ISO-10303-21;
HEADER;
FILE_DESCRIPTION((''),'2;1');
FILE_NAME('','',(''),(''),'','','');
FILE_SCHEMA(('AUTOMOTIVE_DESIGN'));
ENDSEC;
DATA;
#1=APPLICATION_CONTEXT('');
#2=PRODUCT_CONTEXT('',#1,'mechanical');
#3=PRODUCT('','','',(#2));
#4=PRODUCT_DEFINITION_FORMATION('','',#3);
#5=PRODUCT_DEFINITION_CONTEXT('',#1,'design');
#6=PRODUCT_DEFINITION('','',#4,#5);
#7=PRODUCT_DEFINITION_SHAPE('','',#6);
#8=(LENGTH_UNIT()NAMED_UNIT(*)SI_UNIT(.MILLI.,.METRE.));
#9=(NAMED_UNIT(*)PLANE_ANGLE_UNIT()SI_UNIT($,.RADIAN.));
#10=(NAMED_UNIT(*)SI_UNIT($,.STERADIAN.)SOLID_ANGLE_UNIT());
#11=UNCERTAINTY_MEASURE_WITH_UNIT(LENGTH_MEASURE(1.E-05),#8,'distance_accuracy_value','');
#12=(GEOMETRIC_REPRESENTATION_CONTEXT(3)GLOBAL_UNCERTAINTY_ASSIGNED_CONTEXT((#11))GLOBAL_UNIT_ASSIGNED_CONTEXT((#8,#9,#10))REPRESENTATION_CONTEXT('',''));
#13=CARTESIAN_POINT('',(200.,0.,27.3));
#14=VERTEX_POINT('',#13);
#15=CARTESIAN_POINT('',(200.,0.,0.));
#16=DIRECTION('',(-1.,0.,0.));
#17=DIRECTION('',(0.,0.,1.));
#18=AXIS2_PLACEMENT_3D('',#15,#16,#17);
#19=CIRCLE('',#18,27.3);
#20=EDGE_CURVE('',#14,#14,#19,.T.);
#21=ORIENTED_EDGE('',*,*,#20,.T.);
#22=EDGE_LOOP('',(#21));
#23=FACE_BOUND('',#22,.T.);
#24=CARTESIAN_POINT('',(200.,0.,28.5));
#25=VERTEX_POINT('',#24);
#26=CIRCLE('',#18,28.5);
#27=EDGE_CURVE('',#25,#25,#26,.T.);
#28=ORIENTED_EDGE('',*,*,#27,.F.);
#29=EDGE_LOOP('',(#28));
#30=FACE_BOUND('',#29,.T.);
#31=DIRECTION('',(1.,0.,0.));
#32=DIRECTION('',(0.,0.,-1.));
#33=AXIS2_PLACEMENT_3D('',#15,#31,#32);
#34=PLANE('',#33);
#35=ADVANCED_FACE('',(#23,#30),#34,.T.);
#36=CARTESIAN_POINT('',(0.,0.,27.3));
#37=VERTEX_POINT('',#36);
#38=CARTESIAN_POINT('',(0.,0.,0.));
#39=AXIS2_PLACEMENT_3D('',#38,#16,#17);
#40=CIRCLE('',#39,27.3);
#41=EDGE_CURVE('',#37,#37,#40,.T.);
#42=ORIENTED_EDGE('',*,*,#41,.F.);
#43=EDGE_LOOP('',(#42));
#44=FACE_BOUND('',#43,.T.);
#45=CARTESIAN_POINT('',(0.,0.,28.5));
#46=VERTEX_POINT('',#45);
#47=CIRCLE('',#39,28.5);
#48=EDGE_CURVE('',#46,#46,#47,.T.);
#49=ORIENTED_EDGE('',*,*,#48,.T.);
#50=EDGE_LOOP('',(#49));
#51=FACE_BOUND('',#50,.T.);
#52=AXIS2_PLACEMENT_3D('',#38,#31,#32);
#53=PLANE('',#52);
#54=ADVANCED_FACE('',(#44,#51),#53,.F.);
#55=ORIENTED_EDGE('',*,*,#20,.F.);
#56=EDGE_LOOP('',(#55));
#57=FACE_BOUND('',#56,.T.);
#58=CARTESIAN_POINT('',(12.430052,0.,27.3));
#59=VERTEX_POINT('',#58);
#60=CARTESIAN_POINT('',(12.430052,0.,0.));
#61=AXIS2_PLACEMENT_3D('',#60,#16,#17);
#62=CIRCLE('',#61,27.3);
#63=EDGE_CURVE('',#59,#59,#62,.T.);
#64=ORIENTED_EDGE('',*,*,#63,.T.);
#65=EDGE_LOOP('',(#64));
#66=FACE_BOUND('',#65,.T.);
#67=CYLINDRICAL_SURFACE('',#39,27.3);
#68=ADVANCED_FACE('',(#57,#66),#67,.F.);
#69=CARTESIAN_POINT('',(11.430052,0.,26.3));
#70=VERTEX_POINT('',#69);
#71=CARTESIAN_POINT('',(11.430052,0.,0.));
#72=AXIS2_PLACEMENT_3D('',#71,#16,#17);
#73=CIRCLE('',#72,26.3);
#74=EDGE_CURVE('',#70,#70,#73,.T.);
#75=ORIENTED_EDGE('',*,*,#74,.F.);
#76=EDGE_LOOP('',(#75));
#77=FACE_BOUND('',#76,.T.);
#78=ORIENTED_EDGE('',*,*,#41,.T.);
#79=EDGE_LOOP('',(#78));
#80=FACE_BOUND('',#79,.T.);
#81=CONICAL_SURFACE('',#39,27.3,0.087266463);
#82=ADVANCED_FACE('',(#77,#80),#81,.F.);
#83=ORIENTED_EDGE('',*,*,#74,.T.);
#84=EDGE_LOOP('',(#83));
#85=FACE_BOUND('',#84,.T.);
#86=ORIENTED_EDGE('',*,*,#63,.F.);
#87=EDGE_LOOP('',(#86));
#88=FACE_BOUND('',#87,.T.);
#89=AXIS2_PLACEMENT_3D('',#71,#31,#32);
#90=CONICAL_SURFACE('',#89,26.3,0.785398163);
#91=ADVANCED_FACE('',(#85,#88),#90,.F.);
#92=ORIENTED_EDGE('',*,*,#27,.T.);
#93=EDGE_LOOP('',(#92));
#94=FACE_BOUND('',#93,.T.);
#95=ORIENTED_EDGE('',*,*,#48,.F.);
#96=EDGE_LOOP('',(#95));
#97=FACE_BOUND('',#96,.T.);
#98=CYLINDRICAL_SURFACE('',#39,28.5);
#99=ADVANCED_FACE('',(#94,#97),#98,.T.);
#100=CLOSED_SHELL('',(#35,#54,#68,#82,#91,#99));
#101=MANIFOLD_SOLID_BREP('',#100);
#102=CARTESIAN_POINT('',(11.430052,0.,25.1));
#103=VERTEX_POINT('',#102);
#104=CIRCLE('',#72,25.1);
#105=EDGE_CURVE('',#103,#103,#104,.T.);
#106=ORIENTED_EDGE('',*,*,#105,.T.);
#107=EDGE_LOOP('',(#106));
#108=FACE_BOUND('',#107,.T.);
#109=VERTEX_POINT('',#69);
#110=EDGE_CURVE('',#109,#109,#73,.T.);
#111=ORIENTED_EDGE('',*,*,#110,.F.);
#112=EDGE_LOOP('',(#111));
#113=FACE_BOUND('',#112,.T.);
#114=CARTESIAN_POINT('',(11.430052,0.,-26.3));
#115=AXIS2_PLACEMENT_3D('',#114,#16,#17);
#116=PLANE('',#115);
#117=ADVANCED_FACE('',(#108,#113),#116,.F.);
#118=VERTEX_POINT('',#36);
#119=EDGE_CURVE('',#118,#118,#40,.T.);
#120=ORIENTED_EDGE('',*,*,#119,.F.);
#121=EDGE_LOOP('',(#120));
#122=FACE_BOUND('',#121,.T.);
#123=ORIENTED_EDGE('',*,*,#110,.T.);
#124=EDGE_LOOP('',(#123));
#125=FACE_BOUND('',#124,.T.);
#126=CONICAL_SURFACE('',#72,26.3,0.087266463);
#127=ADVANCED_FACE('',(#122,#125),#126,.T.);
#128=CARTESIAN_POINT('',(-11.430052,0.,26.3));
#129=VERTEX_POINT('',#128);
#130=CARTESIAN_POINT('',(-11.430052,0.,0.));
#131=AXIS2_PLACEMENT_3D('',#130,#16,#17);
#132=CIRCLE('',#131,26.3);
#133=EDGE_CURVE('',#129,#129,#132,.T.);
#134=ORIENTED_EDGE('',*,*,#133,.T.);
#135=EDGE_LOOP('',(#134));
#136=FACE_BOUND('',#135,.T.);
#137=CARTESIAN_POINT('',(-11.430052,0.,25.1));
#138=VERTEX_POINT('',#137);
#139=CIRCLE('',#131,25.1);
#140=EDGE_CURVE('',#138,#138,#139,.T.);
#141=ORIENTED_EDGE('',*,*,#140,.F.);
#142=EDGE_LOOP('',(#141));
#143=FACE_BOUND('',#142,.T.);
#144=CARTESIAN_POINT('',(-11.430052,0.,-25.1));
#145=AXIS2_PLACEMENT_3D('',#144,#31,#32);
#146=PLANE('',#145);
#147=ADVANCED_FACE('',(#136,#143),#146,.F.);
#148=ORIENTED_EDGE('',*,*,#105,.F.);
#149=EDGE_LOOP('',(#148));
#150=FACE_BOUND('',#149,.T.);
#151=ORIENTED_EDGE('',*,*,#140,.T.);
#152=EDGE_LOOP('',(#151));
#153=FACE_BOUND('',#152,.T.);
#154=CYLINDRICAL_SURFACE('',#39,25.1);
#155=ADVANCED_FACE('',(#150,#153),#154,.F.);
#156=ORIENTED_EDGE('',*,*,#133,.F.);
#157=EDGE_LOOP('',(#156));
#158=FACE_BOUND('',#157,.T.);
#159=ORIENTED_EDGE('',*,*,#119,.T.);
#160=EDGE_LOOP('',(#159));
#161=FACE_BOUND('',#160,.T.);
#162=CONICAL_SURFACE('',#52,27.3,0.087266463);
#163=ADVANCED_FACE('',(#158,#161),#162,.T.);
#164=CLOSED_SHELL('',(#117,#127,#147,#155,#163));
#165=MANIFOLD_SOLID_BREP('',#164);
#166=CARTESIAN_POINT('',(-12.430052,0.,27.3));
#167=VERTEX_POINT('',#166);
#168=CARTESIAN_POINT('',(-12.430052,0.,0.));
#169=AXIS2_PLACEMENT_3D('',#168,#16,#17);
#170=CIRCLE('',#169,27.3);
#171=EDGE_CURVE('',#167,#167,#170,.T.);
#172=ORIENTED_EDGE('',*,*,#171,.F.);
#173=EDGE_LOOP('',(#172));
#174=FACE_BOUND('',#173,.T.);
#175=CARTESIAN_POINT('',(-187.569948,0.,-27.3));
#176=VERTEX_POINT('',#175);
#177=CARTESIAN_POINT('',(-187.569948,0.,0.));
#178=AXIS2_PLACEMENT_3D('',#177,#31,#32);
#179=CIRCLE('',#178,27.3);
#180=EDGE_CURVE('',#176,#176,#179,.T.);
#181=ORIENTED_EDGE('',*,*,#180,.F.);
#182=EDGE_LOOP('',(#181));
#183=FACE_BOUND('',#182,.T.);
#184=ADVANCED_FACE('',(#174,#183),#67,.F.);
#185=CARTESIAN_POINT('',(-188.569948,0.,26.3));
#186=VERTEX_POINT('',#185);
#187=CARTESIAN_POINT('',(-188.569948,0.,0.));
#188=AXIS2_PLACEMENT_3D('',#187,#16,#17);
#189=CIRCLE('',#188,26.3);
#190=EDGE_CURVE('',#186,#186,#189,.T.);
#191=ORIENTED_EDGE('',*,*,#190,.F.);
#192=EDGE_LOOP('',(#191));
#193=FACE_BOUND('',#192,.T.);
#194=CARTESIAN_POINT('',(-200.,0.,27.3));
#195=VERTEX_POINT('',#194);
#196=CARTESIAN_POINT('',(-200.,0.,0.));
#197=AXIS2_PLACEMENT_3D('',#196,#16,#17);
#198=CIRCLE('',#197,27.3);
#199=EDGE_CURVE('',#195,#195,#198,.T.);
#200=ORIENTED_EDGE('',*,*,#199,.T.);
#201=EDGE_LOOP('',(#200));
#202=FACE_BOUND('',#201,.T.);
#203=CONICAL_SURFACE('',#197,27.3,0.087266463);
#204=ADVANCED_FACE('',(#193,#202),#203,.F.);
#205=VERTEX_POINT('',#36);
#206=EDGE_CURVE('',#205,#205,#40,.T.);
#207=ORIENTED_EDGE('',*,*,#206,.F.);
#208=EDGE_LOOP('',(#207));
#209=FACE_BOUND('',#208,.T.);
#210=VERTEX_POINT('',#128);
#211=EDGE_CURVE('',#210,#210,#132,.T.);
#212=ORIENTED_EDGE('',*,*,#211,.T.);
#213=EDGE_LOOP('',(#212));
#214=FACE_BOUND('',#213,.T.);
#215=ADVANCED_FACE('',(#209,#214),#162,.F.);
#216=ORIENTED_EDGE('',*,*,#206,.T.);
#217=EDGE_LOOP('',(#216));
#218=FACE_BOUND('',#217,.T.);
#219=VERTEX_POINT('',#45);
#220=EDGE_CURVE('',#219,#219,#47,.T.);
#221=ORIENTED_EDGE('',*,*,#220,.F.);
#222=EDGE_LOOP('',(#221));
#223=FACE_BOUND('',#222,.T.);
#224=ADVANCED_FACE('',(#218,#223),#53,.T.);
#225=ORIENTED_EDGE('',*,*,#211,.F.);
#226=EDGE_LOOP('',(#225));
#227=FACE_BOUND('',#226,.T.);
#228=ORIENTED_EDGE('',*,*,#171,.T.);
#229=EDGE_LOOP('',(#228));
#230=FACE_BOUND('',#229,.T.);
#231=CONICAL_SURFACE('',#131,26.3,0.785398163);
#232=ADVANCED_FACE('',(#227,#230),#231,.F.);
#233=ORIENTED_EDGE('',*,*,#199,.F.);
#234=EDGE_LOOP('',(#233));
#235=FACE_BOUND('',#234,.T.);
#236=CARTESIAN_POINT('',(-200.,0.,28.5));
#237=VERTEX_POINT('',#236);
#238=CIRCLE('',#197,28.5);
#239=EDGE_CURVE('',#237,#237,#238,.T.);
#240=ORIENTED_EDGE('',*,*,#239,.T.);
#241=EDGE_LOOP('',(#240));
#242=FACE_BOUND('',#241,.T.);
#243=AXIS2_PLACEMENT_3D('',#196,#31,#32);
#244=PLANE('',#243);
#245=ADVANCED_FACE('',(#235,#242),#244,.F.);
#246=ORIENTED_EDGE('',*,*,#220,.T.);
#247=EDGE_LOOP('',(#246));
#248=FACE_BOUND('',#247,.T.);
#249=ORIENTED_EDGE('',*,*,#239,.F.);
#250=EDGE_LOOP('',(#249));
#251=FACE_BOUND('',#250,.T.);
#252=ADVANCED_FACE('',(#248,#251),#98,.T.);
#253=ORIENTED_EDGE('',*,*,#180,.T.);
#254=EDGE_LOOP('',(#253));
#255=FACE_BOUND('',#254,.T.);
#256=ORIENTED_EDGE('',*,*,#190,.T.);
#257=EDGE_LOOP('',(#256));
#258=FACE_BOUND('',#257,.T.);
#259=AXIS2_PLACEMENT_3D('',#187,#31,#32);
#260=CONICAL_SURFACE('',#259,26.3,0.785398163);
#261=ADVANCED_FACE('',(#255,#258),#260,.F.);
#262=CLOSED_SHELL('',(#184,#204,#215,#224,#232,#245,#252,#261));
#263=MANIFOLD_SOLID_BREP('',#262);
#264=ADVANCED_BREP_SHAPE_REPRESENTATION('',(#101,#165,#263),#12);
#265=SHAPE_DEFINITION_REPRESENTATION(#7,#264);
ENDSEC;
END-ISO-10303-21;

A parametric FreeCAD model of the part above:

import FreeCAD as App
import Part
import Sketcher
from FreeCAD import Vector
Q = App.Units.Quantity


def add_polygon(sketch, points):
    """Adds a closed chain of lines whose ends are joined by coincident constraints."""
    first, n = sketch.GeometryCount, len(points)
    for a, b in zip(points, points[1:] + points[:1]):
        sketch.addGeometry(Part.LineSegment(App.Vector(*a, 0), App.Vector(*b, 0)), False)
    for i in range(n):
        sketch.addConstraint(Sketcher.Constraint("Coincident", first + i, 2, first + (i + 1) % n, 1))

doc = App.newDocument("Part")
body = doc.addObject("PartDesign::Body", "Body")

sketch1 = body.newObject("Sketcher::SketchObject", "Sketch")
sketch1.AttachmentSupport = (doc.getObject("XZ_Plane"), [""])
sketch1.MapMode = "FlatFace"
add_polygon(sketch1, [(200, -27.3), (200, -28.5), (0, -28.5), (0, -27.3), (11.430052, -26.3), (12.430052, -27.3)])
sketch1.addConstraint([
    Sketcher.Constraint("Vertical", 0),
    Sketcher.Constraint("Horizontal", 1),
    Sketcher.Constraint("Vertical", 2),
    Sketcher.Constraint("Horizontal", 5),
    Sketcher.Constraint("PointOnObject", 1, 2, -2),
    Sketcher.Constraint("Horizontal", 2, 2, 4, 2),
    Sketcher.Constraint("DistanceX", 1, 2, 1, 1, Q("200 mm")),
    Sketcher.Constraint("Angle", 3, Q("5 deg")),
    Sketcher.Constraint("Angle", 4, Q("-45 deg")),
    Sketcher.Constraint("DistanceY", 0, 2, 0, 1, Q("1.2 mm")),
    Sketcher.Constraint("DistanceY", 2, 2, 3, 2, Q("1 mm")),
    Sketcher.Constraint("DistanceY", 0, 2, -1, 1, Q("28.5 mm")),
])
revolution = body.newObject("PartDesign::Revolution", "Revolution")
revolution.Profile = sketch1
revolution.ReferenceAxis = (sketch1, ["H_Axis"])
revolution.Angle = 360
body2 = doc.addObject("PartDesign::Body", "Body001")

sketch2 = body2.newObject("Sketcher::SketchObject", "Sketch001")
sketch2.AttachmentSupport = (doc.getObject("XZ_Plane001"), [""])
sketch2.MapMode = "FlatFace"
add_polygon(sketch2, [(0, -27.3), (0, -28.5), (-200, -28.5), (-200, -27.3), (-188.569948, -26.3), (-187.569948, -27.3), (-12.430052, -27.3), (-11.430052, -26.3)])
sketch2.addConstraint([
    Sketcher.Constraint("Vertical", 0),
    Sketcher.Constraint("Horizontal", 1),
    Sketcher.Constraint("Vertical", 2),
    Sketcher.Constraint("Horizontal", 5),
    Sketcher.Constraint("PointOnObject", 0, 2, -2),
    Sketcher.Constraint("Perpendicular", 4, 6),
    Sketcher.Constraint("Horizontal", 2, 2, 4, 2),
    Sketcher.Constraint("Horizontal", 3, 2, 6, 2),
    Sketcher.Constraint("Horizontal", 5, 2, 7, 2),
    Sketcher.Constraint("Equal", 4, 6),
    Sketcher.Constraint("Equal", 3, 7),
    Sketcher.Constraint("DistanceX", 1, 2, 1, 1, Q("200 mm")),
    Sketcher.Constraint("Angle", 3, Q("5 deg")),
    Sketcher.Constraint("DistanceY", 0, 2, 0, 1, Q("1.2 mm")),
    Sketcher.Constraint("DistanceY", 2, 2, 3, 2, Q("1 mm")),
    Sketcher.Constraint("DistanceY", 0, 2, -1, 1, Q("28.5 mm")),
])
revolution2 = body2.newObject("PartDesign::Revolution", "Revolution001")
revolution2.Profile = sketch2
revolution2.ReferenceAxis = (sketch2, ["H_Axis"])
revolution2.Angle = 360
body3 = doc.addObject("PartDesign::Body", "Body002")

sketch3 = body3.newObject("Sketcher::SketchObject", "Sketch002")
sketch3.AttachmentSupport = (doc.getObject("XZ_Plane002"), [""])
sketch3.MapMode = "FlatFace"
add_polygon(sketch3, [(0, -27.3), (-11.430052, -26.3), (-11.430052, -25.1), (11.430052, -25.1), (11.430052, -26.3)])
sketch3.addConstraint([
    Sketcher.Constraint("Vertical", 1),
    Sketcher.Constraint("Horizontal", 2),
    Sketcher.Constraint("Vertical", 3),
    Sketcher.Constraint("Symmetric", 0, 2, 3, 2, -2),
    Sketcher.Constraint("PointOnObject", 4, 2, -2),
    Sketcher.Constraint("Angle", 0, Q("175 deg")),
    Sketcher.Constraint("DistanceY", 1, 1, 1, 2, Q("1.2 mm")),
    Sketcher.Constraint("DistanceY", 4, 2, 0, 2, Q("1 mm")),
    Sketcher.Constraint("DistanceY", 0, 2, -1, 1, Q("26.3 mm")),
])
revolution3 = body3.newObject("PartDesign::Revolution", "Revolution002")
revolution3.Profile = sketch3
revolution3.ReferenceAxis = (sketch3, ["H_Axis"])
revolution3.Angle = 360

doc.recompute()
